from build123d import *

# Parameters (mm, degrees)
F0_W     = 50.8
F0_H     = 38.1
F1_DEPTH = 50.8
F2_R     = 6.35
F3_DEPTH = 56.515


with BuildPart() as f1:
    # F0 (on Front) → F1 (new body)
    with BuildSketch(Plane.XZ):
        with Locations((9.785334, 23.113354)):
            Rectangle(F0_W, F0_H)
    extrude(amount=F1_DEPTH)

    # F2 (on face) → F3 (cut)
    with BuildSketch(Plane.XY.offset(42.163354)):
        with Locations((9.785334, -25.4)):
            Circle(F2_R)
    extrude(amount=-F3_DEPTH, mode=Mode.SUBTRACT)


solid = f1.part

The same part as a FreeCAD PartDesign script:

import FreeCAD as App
import Part
import Sketcher
from FreeCAD import Vector
Q = App.Units.Quantity

doc = App.newDocument("Part")
body = doc.addObject("PartDesign::Body", "Body")

sketch1 = body.newObject("Sketcher::SketchObject", "Sketch")
sketch1.AttachmentSupport = (doc.getObject("XZ_Plane"), [""])
sketch1.MapMode = "FlatFace"
sketch1.addGeometry([
    Part.LineSegment(Vector(-16, 42, 0), Vector(-16, 4, 0)),
    Part.LineSegment(Vector(-16, 4, 0), Vector(35, 4, 0)),
    Part.LineSegment(Vector(35, 4, 0), Vector(35, 42, 0)),
    Part.LineSegment(Vector(35, 42, 0), Vector(-16, 42, 0)),
], False)
sketch1.addConstraint([
    Sketcher.Constraint("Coincident", 0, 2, 1, 1),
    Sketcher.Constraint("Coincident", 1, 2, 2, 1),
    Sketcher.Constraint("Coincident", 2, 2, 3, 1),
    Sketcher.Constraint("Coincident", 3, 2, 0, 1),
    Sketcher.Constraint("Vertical", 0),
    Sketcher.Constraint("Horizontal", 1),
    Sketcher.Constraint("Vertical", 2),
    Sketcher.Constraint("Horizontal", 3),
    Sketcher.Constraint("DistanceX", 1, 1, 1, 2, Q("2 in")),
    Sketcher.Constraint("DistanceY", 0, 2, 0, 1, Q("1.5 in")),
    Sketcher.Constraint("DistanceX", 0, 2, -1, 1, 15.614666),
    Sketcher.Constraint("DistanceY", -1, 1, 0, 2, 4.063354),
])
pad1 = body.newObject("PartDesign::Pad", "Pad")
pad1.Profile = sketch1
pad1.Length = Q("2 in")

sketch2 = body.newObject("Sketcher::SketchObject", "Sketch001")
sketch2.AttachmentSupport = (doc.getObject("XY_Plane"), [""])
sketch2.MapMode = "FlatFace"
sketch2.AttachmentOffset = App.Placement(Vector(0, 0, 42.163354), App.Rotation())
sketch2.addGeometry(Part.Circle(Vector(10, -25, 0), Vector(0, 0, 1), 6), False)
sketch2.addConstraint([
    Sketcher.Constraint("Diameter", 0, Q("0.5 in")),
    Sketcher.Constraint("DistanceY", 0, 3, -1, 1, Q("1 in")),
    Sketcher.Constraint("DistanceX", -1, 1, 0, 3, 9.785334),
])
pocket1 = body.newObject("PartDesign::Pocket", "Pocket")
pocket1.Profile = sketch2
pocket1.Length = Q("2.225 in")

doc.recompute()
